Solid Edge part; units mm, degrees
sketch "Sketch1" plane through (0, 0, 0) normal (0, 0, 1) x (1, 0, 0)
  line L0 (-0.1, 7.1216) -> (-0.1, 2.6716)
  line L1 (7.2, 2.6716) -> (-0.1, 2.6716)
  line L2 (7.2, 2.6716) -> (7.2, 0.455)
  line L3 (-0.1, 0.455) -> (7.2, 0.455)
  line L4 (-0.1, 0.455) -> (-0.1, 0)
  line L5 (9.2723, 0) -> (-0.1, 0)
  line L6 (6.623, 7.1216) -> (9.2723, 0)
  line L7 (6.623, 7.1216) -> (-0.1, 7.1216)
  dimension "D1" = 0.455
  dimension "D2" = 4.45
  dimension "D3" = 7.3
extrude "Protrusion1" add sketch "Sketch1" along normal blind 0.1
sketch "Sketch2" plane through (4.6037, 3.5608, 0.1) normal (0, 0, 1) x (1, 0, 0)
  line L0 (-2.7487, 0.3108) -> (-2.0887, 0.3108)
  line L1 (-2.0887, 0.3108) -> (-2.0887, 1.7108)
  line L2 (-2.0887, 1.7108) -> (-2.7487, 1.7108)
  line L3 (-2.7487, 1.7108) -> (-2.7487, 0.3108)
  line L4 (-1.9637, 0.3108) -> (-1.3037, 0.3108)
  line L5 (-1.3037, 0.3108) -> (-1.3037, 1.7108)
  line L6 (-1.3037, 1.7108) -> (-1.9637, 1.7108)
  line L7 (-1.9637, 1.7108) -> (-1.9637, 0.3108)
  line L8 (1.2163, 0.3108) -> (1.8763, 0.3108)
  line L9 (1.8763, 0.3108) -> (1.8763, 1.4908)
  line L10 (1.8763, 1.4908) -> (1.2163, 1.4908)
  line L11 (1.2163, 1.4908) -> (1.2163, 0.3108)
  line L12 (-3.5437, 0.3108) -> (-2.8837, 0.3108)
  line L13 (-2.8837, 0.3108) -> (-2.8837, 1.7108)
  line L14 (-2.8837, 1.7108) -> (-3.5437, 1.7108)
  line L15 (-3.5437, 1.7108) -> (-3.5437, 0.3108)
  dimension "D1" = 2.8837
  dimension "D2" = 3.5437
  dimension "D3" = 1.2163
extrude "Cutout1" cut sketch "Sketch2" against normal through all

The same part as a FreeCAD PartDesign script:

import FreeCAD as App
import Part
import Sketcher
Q = App.Units.Quantity


def add_polygon(sketch, points):
    """Adds a closed chain of lines whose ends are joined by coincident constraints."""
    first, n = sketch.GeometryCount, len(points)
    for a, b in zip(points, points[1:] + points[:1]):
        sketch.addGeometry(Part.LineSegment(App.Vector(*a, 0), App.Vector(*b, 0)), False)
    for i in range(n):
        sketch.addConstraint(Sketcher.Constraint("Coincident", first + i, 2, first + (i + 1) % n, 1))

doc = App.newDocument("Part")
body = doc.addObject("PartDesign::Body", "Body")

# Sketch on XY plane
sketch1 = body.newObject("Sketcher::SketchObject", "Sketch")
sketch1.AttachmentSupport = (doc.getObject("XY_Plane"), [""])
sketch1.MapMode = "FlatFace"
add_polygon(sketch1, [(6.62, 7.12), (-0.1, 7.12), (-0.1, 2.67), (7.2, 2.67), (7.2, 0.46), (-0.1, 0.46), (-0.1, 0), (9.27, 0)])  # lines 0-7
sketch1.addConstraint([
    Sketcher.Constraint("Horizontal", 0),
    Sketcher.Constraint("Vertical", 1),
    Sketcher.Constraint("Horizontal", 2),
    Sketcher.Constraint("Vertical", 3),
    Sketcher.Constraint("Horizontal", 4),
    Sketcher.Constraint("Vertical", 5),
    Sketcher.Constraint("Horizontal", 6),
    Sketcher.Constraint("PointOnObject", 5, 2, -1),
    Sketcher.Constraint("Vertical", 1, 2, 4, 2),
    Sketcher.Constraint("DistanceX", 0, 2, -1, 1, Q("0.1 mm")),
    Sketcher.Constraint("DistanceX", -1, 1, 2, 2, Q("7.2 mm")),
    Sketcher.Constraint("DistanceY", 1, 2, 1, 1, Q("4.45 mm")),
    Sketcher.Constraint("DistanceX", 0, 2, 0, 1, Q("6.723 mm")),
    Sketcher.Constraint("DistanceY", 5, 2, 5, 1, Q("0.455 mm")),
    Sketcher.Constraint("DistanceX", 6, 1, 6, 2, Q("9.3723 mm")),
    Sketcher.Constraint("DistanceY", 3, 2, 3, 1, Q("2.2166 mm")),
])
pad1 = body.newObject("PartDesign::Pad", "Pad")
pad1.Profile = sketch1
pad1.Length = 0.1

# Sketch on XY plane
sketch2 = body.newObject("Sketcher::SketchObject", "Sketch001")
sketch2.AttachmentSupport = (doc.getObject("XY_Plane"), [""])
sketch2.MapMode = "FlatFace"
sketch2.AttachmentOffset = App.Placement(App.Vector(0, 0, 0.1), App.Rotation())
add_polygon(sketch2, [(1.9, 5.3), (1.9, 3.9), (2.5, 3.9), (2.5, 5.3)])  # lines 0-3
add_polygon(sketch2, [(2.6, 5.3), (2.6, 3.9), (3.3, 3.9), (3.3, 5.3)])  # lines 4-7
add_polygon(sketch2, [(5.8, 5.1), (5.8, 3.9), (6.5, 3.9), (6.5, 5.1)])  # lines 8-11
add_polygon(sketch2, [(1.1, 5.3), (1.1, 3.9), (1.7, 3.9), (1.7, 5.3)])  # lines 12-15
sketch2.addConstraint([
    Sketcher.Constraint("Vertical", 0),
    Sketcher.Constraint("Horizontal", 1),
    Sketcher.Constraint("Vertical", 2),
    Sketcher.Constraint("Horizontal", 3),
    Sketcher.Constraint("Vertical", 4),
    Sketcher.Constraint("Horizontal", 5),
    Sketcher.Constraint("Vertical", 6),
    Sketcher.Constraint("Horizontal", 7),
    Sketcher.Constraint("Vertical", 8),
    Sketcher.Constraint("Horizontal", 9),
    Sketcher.Constraint("Vertical", 10),
    Sketcher.Constraint("Horizontal", 11),
    Sketcher.Constraint("Vertical", 12),
    Sketcher.Constraint("Horizontal", 13),
    Sketcher.Constraint("Vertical", 14),
    Sketcher.Constraint("Horizontal", 15),
    Sketcher.Constraint("Horizontal", 1, 2, 4, 2),
    Sketcher.Constraint("Horizontal", 3, 2, 6, 2),
    Sketcher.Constraint("Horizontal", 5, 2, 8, 2),
    Sketcher.Constraint("Horizontal", 9, 2, 12, 2),
    Sketcher.Constraint("Horizontal", 7, 2, 14, 2),
    Sketcher.Constraint("Equal", 3, 5),
    Sketcher.Constraint("Equal", 7, 9),
    Sketcher.Constraint("Equal", 11, 13),
    Sketcher.Constraint("DistanceY", 0, 2, 0, 1, Q("1.4 mm")),
    Sketcher.Constraint("DistanceX", 1, 1, 1, 2, Q("0.66 mm")),
    Sketcher.Constraint("DistanceY", 8, 2, 8, 1, Q("1.18 mm")),
    Sketcher.Constraint("DistanceX", -1, 1, 5, 2, Q("3.3 mm")),
    Sketcher.Constraint("DistanceX", -1, 1, 8, 2, Q("5.82 mm")),
    Sketcher.Constraint("DistanceX", -1, 1, 12, 2, Q("1.06 mm")),
    Sketcher.Constraint("DistanceX", -1, 1, 0, 2, Q("1.855 mm")),
    Sketcher.Constraint("DistanceY", -1, 1, 0, 2, Q("3.8716 mm")),
])
pocket1 = body.newObject("PartDesign::Pocket", "Pocket")
pocket1.Profile = sketch2
pocket1.Type = "ThroughAll"

doc.recompute()
